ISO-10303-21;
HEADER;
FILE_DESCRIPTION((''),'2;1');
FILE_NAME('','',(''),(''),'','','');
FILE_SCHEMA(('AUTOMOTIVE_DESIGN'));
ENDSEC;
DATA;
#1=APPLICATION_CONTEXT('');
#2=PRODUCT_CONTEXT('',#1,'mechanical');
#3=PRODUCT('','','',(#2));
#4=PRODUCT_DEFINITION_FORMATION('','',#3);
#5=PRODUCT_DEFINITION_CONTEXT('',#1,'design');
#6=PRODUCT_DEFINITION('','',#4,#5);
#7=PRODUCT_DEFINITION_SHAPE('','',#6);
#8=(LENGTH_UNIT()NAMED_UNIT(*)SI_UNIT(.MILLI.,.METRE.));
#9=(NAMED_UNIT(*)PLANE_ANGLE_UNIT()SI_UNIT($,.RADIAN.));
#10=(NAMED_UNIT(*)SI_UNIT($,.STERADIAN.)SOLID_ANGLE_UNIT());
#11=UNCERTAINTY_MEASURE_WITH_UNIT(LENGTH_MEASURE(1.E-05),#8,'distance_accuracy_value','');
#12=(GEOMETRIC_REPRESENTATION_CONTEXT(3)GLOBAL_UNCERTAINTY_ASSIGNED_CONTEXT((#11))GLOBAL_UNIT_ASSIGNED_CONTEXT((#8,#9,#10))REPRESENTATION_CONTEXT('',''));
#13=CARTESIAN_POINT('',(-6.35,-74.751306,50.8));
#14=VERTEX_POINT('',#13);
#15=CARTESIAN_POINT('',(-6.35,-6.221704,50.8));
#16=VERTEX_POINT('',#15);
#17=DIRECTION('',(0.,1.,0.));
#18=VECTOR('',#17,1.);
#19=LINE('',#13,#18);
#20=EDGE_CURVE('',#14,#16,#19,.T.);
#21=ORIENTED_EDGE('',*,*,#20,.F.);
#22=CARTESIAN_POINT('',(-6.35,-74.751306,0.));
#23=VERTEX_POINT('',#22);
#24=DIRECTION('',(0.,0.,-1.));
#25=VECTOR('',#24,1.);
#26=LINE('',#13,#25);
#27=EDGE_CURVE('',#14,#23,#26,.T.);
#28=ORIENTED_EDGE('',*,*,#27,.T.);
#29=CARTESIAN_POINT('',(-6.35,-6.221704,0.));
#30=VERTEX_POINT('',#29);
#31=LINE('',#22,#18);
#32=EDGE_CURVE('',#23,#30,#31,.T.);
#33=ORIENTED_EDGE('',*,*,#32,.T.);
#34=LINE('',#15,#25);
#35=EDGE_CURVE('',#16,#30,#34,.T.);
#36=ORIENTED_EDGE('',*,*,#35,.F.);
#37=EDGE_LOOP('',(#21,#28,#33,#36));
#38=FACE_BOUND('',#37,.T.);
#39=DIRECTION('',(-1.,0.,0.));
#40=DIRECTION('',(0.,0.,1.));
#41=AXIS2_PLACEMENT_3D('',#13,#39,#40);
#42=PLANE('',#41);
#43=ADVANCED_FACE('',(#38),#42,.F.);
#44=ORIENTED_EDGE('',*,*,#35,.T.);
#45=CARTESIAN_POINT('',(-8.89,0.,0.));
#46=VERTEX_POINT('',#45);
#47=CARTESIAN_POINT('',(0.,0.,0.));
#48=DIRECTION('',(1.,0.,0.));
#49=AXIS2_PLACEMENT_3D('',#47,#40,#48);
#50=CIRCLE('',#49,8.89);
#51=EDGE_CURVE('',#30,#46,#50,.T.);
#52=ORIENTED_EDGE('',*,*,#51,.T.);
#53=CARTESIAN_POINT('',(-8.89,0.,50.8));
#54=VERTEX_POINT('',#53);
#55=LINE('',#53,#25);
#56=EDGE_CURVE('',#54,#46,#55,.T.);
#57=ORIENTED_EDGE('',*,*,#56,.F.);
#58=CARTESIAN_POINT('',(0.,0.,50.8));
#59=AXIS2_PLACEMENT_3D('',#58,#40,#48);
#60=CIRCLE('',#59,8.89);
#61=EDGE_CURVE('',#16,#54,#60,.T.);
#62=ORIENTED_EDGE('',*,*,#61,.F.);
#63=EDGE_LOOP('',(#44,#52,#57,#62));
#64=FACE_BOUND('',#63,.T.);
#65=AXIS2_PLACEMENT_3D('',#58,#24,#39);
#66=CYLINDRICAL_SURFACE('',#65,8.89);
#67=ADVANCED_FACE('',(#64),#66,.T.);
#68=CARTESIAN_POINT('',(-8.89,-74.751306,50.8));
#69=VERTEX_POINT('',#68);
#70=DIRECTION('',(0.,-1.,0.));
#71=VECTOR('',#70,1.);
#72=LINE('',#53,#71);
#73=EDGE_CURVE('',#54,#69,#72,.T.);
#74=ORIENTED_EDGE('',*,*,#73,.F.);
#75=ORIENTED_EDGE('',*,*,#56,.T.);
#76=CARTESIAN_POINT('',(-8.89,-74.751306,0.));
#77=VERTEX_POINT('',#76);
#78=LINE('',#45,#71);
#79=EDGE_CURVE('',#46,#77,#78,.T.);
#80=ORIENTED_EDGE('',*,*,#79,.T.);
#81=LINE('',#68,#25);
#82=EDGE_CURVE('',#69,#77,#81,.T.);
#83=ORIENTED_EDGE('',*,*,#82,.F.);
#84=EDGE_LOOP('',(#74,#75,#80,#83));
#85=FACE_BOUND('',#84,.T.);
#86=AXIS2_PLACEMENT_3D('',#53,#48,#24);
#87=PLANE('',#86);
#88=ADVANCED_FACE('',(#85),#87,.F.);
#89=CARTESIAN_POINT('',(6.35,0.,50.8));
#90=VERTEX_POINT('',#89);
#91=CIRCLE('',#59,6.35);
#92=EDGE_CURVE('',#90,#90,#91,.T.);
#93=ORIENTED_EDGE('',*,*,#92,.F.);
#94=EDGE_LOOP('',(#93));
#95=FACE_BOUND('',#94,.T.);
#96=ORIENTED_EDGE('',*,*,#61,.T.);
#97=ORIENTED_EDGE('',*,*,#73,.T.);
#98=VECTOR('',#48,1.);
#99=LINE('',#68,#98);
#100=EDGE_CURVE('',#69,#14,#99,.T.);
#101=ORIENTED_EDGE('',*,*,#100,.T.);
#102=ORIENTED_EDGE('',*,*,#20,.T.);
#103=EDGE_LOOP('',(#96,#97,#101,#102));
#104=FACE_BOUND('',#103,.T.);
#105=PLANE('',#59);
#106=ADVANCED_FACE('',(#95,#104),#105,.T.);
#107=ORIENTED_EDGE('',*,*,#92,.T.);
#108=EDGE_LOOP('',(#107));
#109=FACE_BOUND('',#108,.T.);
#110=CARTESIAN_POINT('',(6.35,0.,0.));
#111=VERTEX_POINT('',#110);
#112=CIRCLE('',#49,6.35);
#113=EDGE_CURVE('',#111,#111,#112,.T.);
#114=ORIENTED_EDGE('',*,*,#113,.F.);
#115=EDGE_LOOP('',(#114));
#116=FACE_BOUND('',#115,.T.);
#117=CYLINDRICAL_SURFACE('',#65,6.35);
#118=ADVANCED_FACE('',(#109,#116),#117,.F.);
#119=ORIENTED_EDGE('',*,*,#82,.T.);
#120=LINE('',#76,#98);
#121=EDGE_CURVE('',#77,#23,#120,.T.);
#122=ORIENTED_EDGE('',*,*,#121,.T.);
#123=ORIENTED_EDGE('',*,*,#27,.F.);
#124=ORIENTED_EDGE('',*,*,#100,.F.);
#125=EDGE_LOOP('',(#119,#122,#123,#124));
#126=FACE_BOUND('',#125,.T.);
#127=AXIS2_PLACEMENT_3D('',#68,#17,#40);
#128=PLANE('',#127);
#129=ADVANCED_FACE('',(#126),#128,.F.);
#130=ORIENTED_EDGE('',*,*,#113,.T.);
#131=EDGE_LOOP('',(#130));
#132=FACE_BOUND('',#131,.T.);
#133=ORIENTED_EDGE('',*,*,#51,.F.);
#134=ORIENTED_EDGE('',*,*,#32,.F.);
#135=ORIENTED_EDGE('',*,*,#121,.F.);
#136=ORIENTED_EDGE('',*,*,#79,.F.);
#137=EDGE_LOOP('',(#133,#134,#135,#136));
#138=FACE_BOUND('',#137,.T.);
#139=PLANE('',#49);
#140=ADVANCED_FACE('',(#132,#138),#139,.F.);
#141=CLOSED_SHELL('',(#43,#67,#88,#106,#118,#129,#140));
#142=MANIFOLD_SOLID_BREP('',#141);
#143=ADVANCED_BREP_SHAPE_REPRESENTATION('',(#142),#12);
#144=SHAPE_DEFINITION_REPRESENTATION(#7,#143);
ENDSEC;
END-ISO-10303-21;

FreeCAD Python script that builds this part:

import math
import FreeCAD as App
import Part
import Sketcher
from FreeCAD import Vector
Q = App.Units.Quantity

doc = App.newDocument("Part")
body = doc.addObject("PartDesign::Body", "Body")

sketch1 = body.newObject("Sketcher::SketchObject", "Sketch")
sketch1.AttachmentSupport = (doc.getObject("XY_Plane"), [""])
sketch1.MapMode = "FlatFace"
sketch1.addGeometry(Part.LineSegment(Vector(-8.9, 0, 0), Vector(-8.9, -74.8, 0)), False)
sketch1.addGeometry(Part.LineSegment(Vector(-8.9, -74.8, 0), Vector(-6.3, -74.8, 0)), False)
sketch1.addGeometry(Part.LineSegment(Vector(-6.3, -74.8, 0), Vector(-6.3, -6.2, 0)), False)
sketch1.addGeometry(Part.ArcOfCircle(Part.Circle(Vector(0, 0, 0), Vector(0, 0, 1), 8.9), math.radians(-136), math.radians(180)), False)
sketch1.addGeometry(Part.Circle(Vector(0, 0, 0), Vector(0, 0, 1), 6.3), False)
sketch1.addConstraint(Sketcher.Constraint("Coincident", 0, 2, 1, 1))
sketch1.addConstraint(Sketcher.Constraint("Coincident", 1, 2, 2, 1))
sketch1.addConstraint(Sketcher.Constraint("Coincident", 2, 2, 3, 1))
sketch1.addConstraint(Sketcher.Constraint("Tangent", 3, 2, 0, 1))
sketch1.addConstraint(Sketcher.Constraint("Vertical", 0))
sketch1.addConstraint(Sketcher.Constraint("Horizontal", 1))
sketch1.addConstraint(Sketcher.Constraint("Vertical", 2))
sketch1.addConstraint(Sketcher.Constraint("Coincident", 3, 3, -1, 1))
sketch1.addConstraint(Sketcher.Constraint("Coincident", 4, 3, -1, 1))
sketch1.addConstraint(Sketcher.Constraint("Diameter", 4, Q("0.5 in")))
sketch1.addConstraint(Sketcher.Constraint("Radius", 3, Q("0.35 in")))
sketch1.addConstraint(Sketcher.Constraint("DistanceX", 1, 1, 1, 2, Q("0.1 in")))
sketch1.addConstraint(Sketcher.Constraint("DistanceY", 2, 1, 2, 2, Q("68.529602 mm")))
pad1 = body.newObject("PartDesign::Pad", "Pad")
pad1.Profile = sketch1
pad1.Length = Q("2 in")

doc.recompute()
